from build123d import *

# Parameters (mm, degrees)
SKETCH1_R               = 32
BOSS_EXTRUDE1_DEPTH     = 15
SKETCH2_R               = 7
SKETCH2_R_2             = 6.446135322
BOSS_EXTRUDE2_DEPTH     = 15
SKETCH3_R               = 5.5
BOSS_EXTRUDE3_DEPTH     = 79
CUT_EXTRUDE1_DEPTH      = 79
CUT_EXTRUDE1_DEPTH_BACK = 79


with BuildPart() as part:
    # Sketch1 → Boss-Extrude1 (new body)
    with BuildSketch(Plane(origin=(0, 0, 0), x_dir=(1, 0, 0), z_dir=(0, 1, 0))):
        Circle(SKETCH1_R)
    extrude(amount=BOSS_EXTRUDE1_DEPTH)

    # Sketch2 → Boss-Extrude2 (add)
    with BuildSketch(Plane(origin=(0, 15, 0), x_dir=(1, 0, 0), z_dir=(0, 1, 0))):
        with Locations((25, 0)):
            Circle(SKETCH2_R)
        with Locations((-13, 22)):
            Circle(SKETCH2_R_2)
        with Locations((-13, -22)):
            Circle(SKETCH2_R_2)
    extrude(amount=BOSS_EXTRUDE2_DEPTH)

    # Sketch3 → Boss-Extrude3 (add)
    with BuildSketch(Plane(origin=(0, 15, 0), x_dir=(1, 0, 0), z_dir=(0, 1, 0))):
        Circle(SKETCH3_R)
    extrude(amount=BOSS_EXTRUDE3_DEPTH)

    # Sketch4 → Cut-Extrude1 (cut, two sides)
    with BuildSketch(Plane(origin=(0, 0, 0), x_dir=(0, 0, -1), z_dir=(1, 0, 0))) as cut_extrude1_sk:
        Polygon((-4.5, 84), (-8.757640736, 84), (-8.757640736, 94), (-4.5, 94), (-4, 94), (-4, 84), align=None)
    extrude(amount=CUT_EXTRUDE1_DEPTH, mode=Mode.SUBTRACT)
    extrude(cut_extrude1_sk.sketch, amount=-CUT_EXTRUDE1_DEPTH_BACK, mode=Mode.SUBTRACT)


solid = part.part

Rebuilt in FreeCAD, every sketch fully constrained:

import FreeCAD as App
import Part
import Sketcher
Q = App.Units.Quantity

doc = App.newDocument("Part")
body = doc.addObject("PartDesign::Body", "Body")

sketch1 = doc.addObject("Sketcher::SketchObject", "Sketch")
body.addObject(sketch1)
sketch1.AttachmentSupport = (doc.XZ_Plane, [""])
sketch1.MapMode = "FlatFace"
sketch1.addGeometry(Part.Circle(App.Vector(0, 0, 0), App.Vector(0, 0, 1), 32), False)
sketch1.addConstraint(Sketcher.Constraint("Coincident", 0, 3, -1, 1))
sketch1.addConstraint(Sketcher.Constraint("Diameter", 0, Q("64 mm")))
pad1 = doc.addObject("PartDesign::Pad", "Pad")
body.addObject(pad1)
pad1.Profile = sketch1
pad1.Length = 15
pad1.Reversed = True

sketch2 = doc.addObject("Sketcher::SketchObject", "Sketch001")
body.addObject(sketch2)
sketch2.AttachmentSupport = (doc.XZ_Plane, [""])
sketch2.MapMode = "FlatFace"
sketch2.AttachmentOffset = App.Placement(App.Vector(0, 0, -15), App.Rotation())
sketch2.addGeometry(Part.Circle(App.Vector(25, 0, 0), App.Vector(0, 0, 1), 7), False)
sketch2.addGeometry(Part.Circle(App.Vector(-13, -22, 0), App.Vector(0, 0, 1), 6), False)
sketch2.addGeometry(Part.Circle(App.Vector(-13, 22, 0), App.Vector(0, 0, 1), 6), False)
sketch2.addConstraint(Sketcher.Constraint("Equal", 1, 2))
sketch2.addConstraint(Sketcher.Constraint("Symmetric", 1, 3, 2, 3, -1))
sketch2.addConstraint(Sketcher.Constraint("PointOnObject", 0, 3, -1))
sketch2.addConstraint(Sketcher.Constraint("Diameter", 0, Q("14 mm")))
sketch2.addConstraint(Sketcher.Constraint("DistanceX", -1, 1, 0, 3, Q("25 mm")))
sketch2.addConstraint(Sketcher.Constraint("DistanceX", 1, 3, -1, 1, Q("13 mm")))
sketch2.addConstraint(Sketcher.Constraint("DistanceY", 1, 3, -1, 1, Q("22 mm")))
sketch2.addConstraint(Sketcher.Constraint("Diameter", 1, Q("12.892271 mm")))
pad2 = doc.addObject("PartDesign::Pad", "Pad001")
body.addObject(pad2)
pad2.Profile = sketch2
pad2.Length = 15
pad2.Reversed = True

sketch3 = doc.addObject("Sketcher::SketchObject", "Sketch002")
body.addObject(sketch3)
sketch3.AttachmentSupport = (doc.XZ_Plane, [""])
sketch3.MapMode = "FlatFace"
sketch3.AttachmentOffset = App.Placement(App.Vector(0, 0, -15), App.Rotation())
sketch3.addGeometry(Part.Circle(App.Vector(0, 0, 0), App.Vector(0, 0, 1), 6), False)
sketch3.addConstraint(Sketcher.Constraint("Coincident", 0, 3, -1, 1))
sketch3.addConstraint(Sketcher.Constraint("Diameter", 0, Q("11 mm")))
pad3 = doc.addObject("PartDesign::Pad", "Pad002")
body.addObject(pad3)
pad3.Profile = sketch3
pad3.Length = 79
pad3.Reversed = True

sketch4 = doc.addObject("Sketcher::SketchObject", "Sketch003")
body.addObject(sketch4)
sketch4.AttachmentSupport = (doc.YZ_Plane, [""])
sketch4.MapMode = "FlatFace"
sketch4.addGeometry(Part.LineSegment(App.Vector(84, 8.8, 0), App.Vector(84, 4, 0)), False)
sketch4.addGeometry(Part.LineSegment(App.Vector(84, 4, 0), App.Vector(94, 4, 0)), False)
sketch4.addGeometry(Part.LineSegment(App.Vector(94, 4, 0), App.Vector(94, 8.8, 0)), False)
sketch4.addGeometry(Part.LineSegment(App.Vector(94, 8.8, 0), App.Vector(84, 8.8, 0)), False)
sketch4.addConstraint(Sketcher.Constraint("Coincident", 0, 2, 1, 1))
sketch4.addConstraint(Sketcher.Constraint("Coincident", 1, 2, 2, 1))
sketch4.addConstraint(Sketcher.Constraint("Coincident", 2, 2, 3, 1))
sketch4.addConstraint(Sketcher.Constraint("Coincident", 3, 2, 0, 1))
sketch4.addConstraint(Sketcher.Constraint("Vertical", 0))
sketch4.addConstraint(Sketcher.Constraint("Horizontal", 1))
sketch4.addConstraint(Sketcher.Constraint("Vertical", 2))
sketch4.addConstraint(Sketcher.Constraint("Horizontal", 3))
sketch4.addConstraint(Sketcher.Constraint("DistanceX", 1, 1, 1, 2, Q("10 mm")))
sketch4.addConstraint(Sketcher.Constraint("DistanceX", -1, 1, 0, 2, Q("84 mm")))
sketch4.addConstraint(Sketcher.Constraint("DistanceY", -1, 1, 0, 2, Q("4 mm")))
sketch4.addConstraint(Sketcher.Constraint("DistanceY", 0, 2, 0, 1, Q("4.757641 mm")))
pocket1 = doc.addObject("PartDesign::Pocket", "Pocket")
body.addObject(pocket1)
pocket1.Profile = sketch4
pocket1.Type = "ThroughAll"
pocket1.Midplane = True

doc.recompute()
